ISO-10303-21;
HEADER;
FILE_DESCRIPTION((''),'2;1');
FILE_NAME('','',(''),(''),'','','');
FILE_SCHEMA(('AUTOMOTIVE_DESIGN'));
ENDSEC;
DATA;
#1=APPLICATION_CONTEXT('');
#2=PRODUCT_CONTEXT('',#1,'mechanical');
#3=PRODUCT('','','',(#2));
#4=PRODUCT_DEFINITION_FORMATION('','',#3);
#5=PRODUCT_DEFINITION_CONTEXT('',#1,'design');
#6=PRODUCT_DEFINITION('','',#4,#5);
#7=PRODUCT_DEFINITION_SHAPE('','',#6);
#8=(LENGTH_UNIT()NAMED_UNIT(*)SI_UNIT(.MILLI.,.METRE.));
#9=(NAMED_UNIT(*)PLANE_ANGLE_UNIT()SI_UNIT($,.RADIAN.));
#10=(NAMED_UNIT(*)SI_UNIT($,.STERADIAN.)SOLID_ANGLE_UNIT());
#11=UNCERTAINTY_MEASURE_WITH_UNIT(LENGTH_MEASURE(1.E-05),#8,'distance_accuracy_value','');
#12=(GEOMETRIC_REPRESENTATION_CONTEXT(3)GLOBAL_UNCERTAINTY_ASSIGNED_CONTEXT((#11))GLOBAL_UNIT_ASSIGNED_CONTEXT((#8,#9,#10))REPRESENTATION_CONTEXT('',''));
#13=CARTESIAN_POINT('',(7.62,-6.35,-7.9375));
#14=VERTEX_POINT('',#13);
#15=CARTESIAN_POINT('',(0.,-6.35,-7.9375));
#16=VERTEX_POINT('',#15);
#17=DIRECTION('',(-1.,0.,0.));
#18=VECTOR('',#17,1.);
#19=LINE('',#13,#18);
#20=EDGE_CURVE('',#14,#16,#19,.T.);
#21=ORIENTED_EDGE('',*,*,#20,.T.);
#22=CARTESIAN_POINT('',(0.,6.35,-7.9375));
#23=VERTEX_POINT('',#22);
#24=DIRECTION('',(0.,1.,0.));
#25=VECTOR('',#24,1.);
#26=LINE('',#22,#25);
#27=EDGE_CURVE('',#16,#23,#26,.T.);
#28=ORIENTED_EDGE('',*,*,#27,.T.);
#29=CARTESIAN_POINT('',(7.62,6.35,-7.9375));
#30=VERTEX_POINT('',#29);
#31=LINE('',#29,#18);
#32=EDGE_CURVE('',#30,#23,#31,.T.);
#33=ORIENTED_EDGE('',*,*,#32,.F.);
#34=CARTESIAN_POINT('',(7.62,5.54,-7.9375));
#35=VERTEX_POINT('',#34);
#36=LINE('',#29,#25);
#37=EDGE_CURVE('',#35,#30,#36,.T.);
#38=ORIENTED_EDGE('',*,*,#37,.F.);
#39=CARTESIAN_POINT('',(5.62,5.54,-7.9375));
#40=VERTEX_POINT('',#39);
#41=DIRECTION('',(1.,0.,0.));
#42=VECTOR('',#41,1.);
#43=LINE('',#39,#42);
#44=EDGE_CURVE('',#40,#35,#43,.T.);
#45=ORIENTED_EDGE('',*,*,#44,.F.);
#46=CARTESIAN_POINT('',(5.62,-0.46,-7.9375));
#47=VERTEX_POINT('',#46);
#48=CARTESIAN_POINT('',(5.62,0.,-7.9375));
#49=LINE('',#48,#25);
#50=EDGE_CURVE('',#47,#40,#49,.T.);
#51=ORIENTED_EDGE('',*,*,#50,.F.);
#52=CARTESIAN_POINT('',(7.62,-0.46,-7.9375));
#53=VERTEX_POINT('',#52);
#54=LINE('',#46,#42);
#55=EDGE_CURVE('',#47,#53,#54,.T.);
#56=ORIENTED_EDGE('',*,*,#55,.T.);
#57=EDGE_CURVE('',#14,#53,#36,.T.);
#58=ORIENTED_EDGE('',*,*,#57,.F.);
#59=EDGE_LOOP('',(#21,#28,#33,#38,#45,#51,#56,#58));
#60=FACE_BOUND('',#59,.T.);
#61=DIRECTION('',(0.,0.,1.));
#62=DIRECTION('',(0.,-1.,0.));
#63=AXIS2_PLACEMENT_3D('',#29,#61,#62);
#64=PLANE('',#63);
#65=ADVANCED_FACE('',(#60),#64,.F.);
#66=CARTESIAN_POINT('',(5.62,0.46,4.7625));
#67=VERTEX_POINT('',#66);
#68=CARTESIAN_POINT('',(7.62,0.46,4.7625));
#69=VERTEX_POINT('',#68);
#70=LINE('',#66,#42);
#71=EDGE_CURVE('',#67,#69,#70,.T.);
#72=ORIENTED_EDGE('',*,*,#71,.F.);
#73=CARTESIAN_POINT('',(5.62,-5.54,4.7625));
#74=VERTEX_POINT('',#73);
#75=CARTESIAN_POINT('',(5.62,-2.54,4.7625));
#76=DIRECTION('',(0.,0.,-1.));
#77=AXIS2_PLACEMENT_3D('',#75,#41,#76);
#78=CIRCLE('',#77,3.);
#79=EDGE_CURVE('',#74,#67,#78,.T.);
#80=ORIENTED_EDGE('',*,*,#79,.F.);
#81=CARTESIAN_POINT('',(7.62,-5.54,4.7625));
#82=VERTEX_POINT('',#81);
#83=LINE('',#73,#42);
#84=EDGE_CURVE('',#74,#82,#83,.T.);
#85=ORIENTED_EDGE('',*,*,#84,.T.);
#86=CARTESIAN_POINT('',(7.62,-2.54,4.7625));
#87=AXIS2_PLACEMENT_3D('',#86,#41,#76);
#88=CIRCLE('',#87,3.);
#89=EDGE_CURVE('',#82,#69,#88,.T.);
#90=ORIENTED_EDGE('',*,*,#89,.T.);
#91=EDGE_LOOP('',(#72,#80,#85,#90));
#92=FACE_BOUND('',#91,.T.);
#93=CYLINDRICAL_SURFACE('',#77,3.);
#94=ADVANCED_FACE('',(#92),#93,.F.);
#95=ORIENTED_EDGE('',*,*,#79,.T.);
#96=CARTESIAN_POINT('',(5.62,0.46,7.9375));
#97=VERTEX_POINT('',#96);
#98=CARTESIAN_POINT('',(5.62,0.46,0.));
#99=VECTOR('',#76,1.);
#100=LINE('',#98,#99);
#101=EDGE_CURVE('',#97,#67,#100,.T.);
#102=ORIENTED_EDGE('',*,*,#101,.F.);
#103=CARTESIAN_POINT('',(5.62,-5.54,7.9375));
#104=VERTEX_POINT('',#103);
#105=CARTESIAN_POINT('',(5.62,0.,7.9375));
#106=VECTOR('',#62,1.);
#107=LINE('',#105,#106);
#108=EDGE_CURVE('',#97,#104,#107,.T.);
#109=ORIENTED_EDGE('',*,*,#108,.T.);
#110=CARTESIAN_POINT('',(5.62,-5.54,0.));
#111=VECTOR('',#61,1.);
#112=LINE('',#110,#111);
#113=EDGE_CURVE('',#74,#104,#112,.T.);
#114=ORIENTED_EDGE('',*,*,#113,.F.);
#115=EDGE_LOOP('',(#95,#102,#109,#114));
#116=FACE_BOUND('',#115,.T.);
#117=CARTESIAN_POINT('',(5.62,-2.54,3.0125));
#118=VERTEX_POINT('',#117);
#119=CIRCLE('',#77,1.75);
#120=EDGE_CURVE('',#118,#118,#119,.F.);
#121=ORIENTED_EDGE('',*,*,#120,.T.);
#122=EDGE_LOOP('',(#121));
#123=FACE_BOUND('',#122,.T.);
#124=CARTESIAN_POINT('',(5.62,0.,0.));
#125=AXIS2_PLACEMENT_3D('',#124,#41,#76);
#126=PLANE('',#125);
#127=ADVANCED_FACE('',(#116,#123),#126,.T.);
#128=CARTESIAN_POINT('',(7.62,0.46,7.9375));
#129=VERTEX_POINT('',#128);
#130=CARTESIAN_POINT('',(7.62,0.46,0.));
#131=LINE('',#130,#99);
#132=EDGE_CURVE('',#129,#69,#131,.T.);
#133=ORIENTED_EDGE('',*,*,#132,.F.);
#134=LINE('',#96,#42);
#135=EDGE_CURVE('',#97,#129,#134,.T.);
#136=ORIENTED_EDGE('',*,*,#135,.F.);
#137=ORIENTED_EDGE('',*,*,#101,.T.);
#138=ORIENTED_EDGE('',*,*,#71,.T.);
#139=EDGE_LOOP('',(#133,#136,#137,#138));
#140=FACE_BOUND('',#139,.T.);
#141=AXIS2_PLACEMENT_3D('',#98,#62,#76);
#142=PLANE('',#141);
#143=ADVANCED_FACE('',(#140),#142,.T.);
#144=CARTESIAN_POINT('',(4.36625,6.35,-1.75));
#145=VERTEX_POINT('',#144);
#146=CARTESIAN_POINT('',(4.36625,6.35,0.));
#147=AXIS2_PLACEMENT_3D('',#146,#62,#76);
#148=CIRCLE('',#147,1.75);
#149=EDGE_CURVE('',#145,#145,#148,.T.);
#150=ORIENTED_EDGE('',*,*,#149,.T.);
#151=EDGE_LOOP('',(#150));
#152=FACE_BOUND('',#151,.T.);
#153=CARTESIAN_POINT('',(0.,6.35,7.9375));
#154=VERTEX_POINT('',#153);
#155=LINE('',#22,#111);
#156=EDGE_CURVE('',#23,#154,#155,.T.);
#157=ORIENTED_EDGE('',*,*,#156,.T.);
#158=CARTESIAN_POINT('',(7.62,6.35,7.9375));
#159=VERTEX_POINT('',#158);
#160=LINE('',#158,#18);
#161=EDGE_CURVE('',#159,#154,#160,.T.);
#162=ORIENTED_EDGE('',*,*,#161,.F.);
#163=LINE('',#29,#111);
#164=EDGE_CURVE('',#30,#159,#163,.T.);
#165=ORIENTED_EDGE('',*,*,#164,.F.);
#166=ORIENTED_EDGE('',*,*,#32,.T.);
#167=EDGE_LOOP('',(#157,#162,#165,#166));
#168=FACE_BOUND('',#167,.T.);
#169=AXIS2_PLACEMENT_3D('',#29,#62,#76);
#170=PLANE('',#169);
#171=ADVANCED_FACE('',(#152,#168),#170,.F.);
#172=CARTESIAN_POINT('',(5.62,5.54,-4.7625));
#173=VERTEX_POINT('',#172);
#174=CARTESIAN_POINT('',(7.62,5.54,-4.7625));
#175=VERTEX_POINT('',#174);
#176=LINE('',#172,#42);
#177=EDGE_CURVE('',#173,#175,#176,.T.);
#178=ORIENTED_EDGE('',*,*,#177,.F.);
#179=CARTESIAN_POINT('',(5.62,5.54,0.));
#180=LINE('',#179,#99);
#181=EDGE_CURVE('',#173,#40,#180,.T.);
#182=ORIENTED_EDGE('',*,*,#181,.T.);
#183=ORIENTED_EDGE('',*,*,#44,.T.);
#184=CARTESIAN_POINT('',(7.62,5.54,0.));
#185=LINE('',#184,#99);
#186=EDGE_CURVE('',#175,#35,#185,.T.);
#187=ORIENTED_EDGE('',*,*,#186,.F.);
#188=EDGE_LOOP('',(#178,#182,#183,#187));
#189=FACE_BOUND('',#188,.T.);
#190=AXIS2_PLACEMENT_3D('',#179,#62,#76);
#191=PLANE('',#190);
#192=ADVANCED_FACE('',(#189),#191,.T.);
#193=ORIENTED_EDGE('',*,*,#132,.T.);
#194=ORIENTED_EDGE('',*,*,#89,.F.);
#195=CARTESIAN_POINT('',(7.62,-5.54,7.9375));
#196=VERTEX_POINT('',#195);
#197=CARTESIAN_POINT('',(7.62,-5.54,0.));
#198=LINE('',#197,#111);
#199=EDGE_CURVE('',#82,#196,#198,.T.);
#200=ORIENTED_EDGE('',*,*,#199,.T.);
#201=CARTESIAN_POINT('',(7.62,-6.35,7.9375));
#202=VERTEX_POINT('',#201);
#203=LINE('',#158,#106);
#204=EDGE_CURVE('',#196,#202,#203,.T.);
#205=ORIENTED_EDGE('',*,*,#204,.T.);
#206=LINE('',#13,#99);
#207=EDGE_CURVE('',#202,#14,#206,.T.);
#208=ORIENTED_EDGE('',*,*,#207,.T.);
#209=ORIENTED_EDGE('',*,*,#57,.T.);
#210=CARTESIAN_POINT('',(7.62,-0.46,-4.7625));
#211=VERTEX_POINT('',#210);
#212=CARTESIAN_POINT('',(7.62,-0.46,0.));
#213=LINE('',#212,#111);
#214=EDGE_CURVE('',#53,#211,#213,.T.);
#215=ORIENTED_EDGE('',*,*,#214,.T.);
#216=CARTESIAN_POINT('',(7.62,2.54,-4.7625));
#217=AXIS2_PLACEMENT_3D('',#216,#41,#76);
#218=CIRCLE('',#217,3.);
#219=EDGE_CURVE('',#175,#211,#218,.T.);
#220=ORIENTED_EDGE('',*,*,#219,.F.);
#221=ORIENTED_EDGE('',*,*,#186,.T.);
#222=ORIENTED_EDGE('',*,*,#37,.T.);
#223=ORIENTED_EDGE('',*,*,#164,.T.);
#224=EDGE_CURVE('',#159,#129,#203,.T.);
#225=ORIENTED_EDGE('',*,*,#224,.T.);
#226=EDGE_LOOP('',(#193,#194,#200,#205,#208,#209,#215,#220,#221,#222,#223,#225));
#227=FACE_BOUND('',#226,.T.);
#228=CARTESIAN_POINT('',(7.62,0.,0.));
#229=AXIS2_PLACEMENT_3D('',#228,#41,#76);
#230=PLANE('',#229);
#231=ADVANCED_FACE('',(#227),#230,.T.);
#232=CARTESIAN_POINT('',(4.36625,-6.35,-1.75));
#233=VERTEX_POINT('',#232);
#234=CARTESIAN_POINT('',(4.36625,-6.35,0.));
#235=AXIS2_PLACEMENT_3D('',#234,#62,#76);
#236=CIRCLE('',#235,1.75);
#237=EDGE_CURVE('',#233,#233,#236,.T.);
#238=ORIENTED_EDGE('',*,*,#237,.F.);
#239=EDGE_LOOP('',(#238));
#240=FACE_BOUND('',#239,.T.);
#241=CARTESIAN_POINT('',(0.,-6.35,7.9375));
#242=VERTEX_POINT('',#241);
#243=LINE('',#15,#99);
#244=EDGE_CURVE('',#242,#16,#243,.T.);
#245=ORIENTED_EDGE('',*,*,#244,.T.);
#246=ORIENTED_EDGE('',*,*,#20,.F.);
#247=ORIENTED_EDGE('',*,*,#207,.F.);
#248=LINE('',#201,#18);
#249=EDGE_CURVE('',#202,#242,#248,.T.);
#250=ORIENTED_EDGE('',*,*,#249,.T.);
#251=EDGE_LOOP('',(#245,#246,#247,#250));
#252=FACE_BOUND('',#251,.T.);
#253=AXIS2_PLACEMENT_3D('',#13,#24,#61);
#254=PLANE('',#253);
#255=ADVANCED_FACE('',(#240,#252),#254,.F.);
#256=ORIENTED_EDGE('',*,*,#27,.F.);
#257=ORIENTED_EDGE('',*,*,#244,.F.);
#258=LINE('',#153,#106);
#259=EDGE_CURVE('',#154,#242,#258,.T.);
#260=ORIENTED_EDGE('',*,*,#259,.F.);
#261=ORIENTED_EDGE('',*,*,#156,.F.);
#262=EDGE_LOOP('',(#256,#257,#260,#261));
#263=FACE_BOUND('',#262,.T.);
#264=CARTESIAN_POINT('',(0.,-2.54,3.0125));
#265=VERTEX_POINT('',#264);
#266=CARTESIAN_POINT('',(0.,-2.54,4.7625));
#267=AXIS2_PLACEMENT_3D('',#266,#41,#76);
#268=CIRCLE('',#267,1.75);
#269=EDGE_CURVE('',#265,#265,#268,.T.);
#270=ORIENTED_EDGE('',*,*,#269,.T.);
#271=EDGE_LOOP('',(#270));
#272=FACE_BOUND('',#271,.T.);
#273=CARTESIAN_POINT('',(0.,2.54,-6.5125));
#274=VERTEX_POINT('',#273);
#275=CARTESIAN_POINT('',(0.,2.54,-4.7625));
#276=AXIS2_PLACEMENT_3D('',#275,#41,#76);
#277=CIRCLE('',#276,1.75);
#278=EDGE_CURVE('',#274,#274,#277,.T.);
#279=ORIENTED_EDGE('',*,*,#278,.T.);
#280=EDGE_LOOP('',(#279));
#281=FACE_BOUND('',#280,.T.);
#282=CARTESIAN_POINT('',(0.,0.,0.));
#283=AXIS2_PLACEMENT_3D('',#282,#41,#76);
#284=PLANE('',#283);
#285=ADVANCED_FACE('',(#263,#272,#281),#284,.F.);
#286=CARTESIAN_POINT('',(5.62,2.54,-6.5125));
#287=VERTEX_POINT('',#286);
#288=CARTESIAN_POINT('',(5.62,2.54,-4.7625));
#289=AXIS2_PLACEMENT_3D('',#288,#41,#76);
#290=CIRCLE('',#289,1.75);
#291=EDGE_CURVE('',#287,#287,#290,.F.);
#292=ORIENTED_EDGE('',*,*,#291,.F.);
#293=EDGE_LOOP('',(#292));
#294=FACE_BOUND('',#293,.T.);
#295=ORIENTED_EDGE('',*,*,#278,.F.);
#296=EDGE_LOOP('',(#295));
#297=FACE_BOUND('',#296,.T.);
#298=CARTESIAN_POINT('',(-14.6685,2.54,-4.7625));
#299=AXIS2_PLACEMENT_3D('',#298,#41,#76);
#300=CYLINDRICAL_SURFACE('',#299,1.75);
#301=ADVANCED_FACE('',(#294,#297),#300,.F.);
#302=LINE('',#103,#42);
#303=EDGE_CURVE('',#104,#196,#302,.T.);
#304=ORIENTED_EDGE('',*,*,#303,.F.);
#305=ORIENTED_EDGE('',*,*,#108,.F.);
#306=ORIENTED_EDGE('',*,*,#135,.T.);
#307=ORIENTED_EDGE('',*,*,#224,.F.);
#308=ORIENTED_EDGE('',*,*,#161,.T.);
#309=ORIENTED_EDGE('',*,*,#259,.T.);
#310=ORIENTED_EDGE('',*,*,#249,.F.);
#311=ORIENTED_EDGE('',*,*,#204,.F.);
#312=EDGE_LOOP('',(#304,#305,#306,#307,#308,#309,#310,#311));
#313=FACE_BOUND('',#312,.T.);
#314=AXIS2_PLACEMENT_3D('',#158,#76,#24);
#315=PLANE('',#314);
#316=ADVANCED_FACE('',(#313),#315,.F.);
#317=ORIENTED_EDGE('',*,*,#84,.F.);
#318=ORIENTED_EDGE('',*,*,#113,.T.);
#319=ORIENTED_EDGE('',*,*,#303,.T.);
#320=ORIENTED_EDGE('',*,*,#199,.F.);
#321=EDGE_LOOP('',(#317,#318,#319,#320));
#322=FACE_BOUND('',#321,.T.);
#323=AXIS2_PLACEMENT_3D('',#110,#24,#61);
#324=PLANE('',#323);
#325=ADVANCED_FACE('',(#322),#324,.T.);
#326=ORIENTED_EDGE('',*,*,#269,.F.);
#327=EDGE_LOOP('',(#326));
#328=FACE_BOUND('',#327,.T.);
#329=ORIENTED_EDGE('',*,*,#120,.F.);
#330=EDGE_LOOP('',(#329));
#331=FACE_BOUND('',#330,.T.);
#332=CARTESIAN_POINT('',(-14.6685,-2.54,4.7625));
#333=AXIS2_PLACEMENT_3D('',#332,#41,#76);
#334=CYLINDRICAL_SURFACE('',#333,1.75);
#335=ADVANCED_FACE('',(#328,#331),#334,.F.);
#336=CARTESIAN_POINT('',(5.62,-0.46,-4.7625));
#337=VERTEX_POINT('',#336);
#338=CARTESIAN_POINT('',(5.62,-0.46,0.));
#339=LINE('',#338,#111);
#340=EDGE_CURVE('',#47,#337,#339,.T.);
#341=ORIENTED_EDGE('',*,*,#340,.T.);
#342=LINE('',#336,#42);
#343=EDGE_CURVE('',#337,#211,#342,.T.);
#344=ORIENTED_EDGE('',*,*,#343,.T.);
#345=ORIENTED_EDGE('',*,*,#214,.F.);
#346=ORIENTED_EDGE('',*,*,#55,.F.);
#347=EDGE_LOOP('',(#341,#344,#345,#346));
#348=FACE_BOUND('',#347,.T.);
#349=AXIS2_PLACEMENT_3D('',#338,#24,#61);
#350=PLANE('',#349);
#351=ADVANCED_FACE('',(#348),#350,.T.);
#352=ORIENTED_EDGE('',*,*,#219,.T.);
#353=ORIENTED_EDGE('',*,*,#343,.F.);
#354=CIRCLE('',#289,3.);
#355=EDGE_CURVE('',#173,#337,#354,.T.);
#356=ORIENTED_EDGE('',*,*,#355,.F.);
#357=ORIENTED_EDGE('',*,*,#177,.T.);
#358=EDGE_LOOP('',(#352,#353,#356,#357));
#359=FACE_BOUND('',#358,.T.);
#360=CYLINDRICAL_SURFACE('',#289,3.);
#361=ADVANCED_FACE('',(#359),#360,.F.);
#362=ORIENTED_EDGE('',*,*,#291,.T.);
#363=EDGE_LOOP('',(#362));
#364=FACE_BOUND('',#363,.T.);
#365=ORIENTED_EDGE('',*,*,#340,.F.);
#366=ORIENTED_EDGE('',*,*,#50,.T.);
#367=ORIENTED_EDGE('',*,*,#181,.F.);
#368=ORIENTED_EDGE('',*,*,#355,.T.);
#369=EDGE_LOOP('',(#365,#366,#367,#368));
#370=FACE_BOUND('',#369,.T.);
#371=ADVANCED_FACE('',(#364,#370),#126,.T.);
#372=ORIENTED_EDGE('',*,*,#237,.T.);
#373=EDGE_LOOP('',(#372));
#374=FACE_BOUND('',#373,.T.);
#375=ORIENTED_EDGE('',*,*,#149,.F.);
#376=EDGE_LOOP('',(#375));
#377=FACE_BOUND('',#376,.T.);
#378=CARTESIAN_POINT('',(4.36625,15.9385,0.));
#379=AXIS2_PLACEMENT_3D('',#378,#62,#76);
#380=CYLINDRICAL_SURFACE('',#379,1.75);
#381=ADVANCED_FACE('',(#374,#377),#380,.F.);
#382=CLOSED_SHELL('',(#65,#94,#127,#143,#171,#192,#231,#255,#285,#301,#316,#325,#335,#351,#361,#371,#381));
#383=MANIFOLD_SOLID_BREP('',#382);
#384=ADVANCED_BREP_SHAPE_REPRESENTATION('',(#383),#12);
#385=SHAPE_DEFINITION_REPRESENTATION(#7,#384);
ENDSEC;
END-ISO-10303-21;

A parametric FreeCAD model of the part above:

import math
import FreeCAD as App
import Part
import Sketcher
Q = App.Units.Quantity

doc = App.newDocument("Part")
body = doc.addObject("PartDesign::Body", "Body")

# Sketch on YZ plane
sketch1 = body.newObject("Sketcher::SketchObject", "Sketch")
sketch1.AttachmentSupport = (doc.getObject("YZ_Plane"), [""])
sketch1.MapMode = "FlatFace"
sketch1.addGeometry([
    Part.LineSegment(App.Vector(-6, 8, 0), App.Vector(-6, -8, 0)),
    Part.LineSegment(App.Vector(-6, -8, 0), App.Vector(6, -8, 0)),
    Part.LineSegment(App.Vector(6, -8, 0), App.Vector(6, 8, 0)),
    Part.LineSegment(App.Vector(6, 8, 0), App.Vector(-6, 8, 0)),
], False)
sketch1.addConstraint([
    Sketcher.Constraint("Coincident", 0, 2, 1, 1),
    Sketcher.Constraint("Coincident", 1, 2, 2, 1),
    Sketcher.Constraint("Coincident", 2, 2, 3, 1),
    Sketcher.Constraint("Coincident", 3, 2, 0, 1),
    Sketcher.Constraint("Vertical", 0),
    Sketcher.Constraint("Horizontal", 1),
    Sketcher.Constraint("Vertical", 2),
    Sketcher.Constraint("Horizontal", 3),
    Sketcher.Constraint("Symmetric", 0, 2, 2, 2, -1, 1),
    Sketcher.Constraint("DistanceX", 1, 1, 1, 2, Q("0.5 in")),
    Sketcher.Constraint("DistanceY", 0, 2, 0, 1, Q("0.625 in")),
])
pad1 = body.newObject("PartDesign::Pad", "Pad")
pad1.Profile = sketch1
pad1.Length = Q("0.3 in")

# Sketch on XZ plane
sketch2 = body.newObject("Sketcher::SketchObject", "Sketch001")
sketch2.AttachmentSupport = (doc.getObject("XZ_Plane"), [""])
sketch2.MapMode = "FlatFace"
sketch2.AttachmentOffset = App.Placement(App.Vector(0, 0, 0.25 * 25.4), App.Rotation())
sketch2.addGeometry(Part.Circle(App.Vector(4.4, 0, 0), App.Vector(0, 0, 1), 1.8), False)
sketch2.addConstraint([
    Sketcher.Constraint("PointOnObject", 0, 3, -1),
    Sketcher.Constraint("Diameter", 0, 3.5),
    Sketcher.Constraint("DistanceX", -1, 1, 0, 3, 4.36625),
])
pocket1 = body.newObject("PartDesign::Pocket", "Pocket")
pocket1.Profile = sketch2
pocket1.Length = Q("0.8775 in")

# Sketch on YZ plane
sketch3 = body.newObject("Sketcher::SketchObject", "Sketch002")
sketch3.AttachmentSupport = (doc.getObject("YZ_Plane"), [""])
sketch3.MapMode = "FlatFace"
sketch3.AttachmentOffset = App.Placement(App.Vector(0, 0, 0.3 * 25.4), App.Rotation())
sketch3.addGeometry([
    Part.Circle(App.Vector(-2.5, 4.8, 0), App.Vector(0, 0, 1), 1.8),
    Part.Circle(App.Vector(2.5, -4.8, 0), App.Vector(0, 0, 1), 1.8),
], False)
sketch3.addConstraint([
    Sketcher.Constraint("Equal", 0, 1),
    Sketcher.Constraint("Symmetric", 0, 3, 1, 3, -1, 1),
    Sketcher.Constraint("DistanceX", 0, 3, -1, 1, Q("0.1 in")),
    Sketcher.Constraint("Diameter", 0, 3.5),
    Sketcher.Constraint("DistanceY", -1, 1, 0, 3, Q("0.1875 in")),
])
pocket2 = body.newObject("PartDesign::Pocket", "Pocket001")
pocket2.Profile = sketch3
pocket2.Length = Q("0.8775 in")

# Sketch on YZ plane
sketch4 = body.newObject("Sketcher::SketchObject", "Sketch003")
sketch4.AttachmentSupport = (doc.getObject("YZ_Plane"), [""])
sketch4.MapMode = "FlatFace"
sketch4.AttachmentOffset = App.Placement(App.Vector(0, 0, 0.3 * 25.4), App.Rotation())
sketch4.addGeometry([
    Part.ArcOfCircle(Part.Circle(App.Vector(-2.5, 4.8, 0), App.Vector(0, 0, 1), 3), math.radians(180), math.radians(360)),  # 0
    Part.LineSegment(App.Vector(0.5, 4.8, 0), App.Vector(0.5, 7.9, 0)),  # 1
    Part.LineSegment(App.Vector(0.5, 7.9, 0), App.Vector(-5.5, 7.9, 0)),  # 2
    Part.LineSegment(App.Vector(-5.5, 7.9, 0), App.Vector(-5.5, 4.8, 0)),  # 3
    Part.Circle(App.Vector(-2.5, 4.8, 0), App.Vector(0, 0, 1), 1.8),  # 4
    Part.ArcOfCircle(Part.Circle(App.Vector(2.5, -4.8, 0), App.Vector(0, 0, 1), 3), math.radians(0), math.radians(180)),  # 5
    Part.LineSegment(App.Vector(-0.5, -4.8, 0), App.Vector(-0.5, -7.9, 0)),  # 6
    Part.LineSegment(App.Vector(-0.5, -7.9, 0), App.Vector(5.5, -7.9, 0)),  # 7
    Part.LineSegment(App.Vector(5.5, -7.9, 0), App.Vector(5.5, -4.8, 0)),  # 8
    Part.Circle(App.Vector(2.5, -4.8, 0), App.Vector(0, 0, 1), 1.8),  # 9
], False)
sketch4.addConstraint([
    Sketcher.Constraint("Tangent", 0, 2, 1, 1),
    Sketcher.Constraint("Coincident", 1, 2, 2, 1),
    Sketcher.Constraint("Coincident", 2, 2, 3, 1),
    Sketcher.Constraint("Tangent", 3, 2, 0, 1),
    Sketcher.Constraint("Tangent", 5, 2, 6, 1),
    Sketcher.Constraint("Coincident", 6, 2, 7, 1),
    Sketcher.Constraint("Coincident", 7, 2, 8, 1),
    Sketcher.Constraint("Tangent", 8, 2, 5, 1),
    Sketcher.Constraint("Vertical", 1),
    Sketcher.Constraint("Horizontal", 2),
    Sketcher.Constraint("Vertical", 3),
    Sketcher.Constraint("Vertical", 6),
    Sketcher.Constraint("Horizontal", 7),
    Sketcher.Constraint("Vertical", 8),
    Sketcher.Constraint("Coincident", 4, 3, 0, 3),
    Sketcher.Constraint("Coincident", 9, 3, 5, 3),
    Sketcher.Constraint("Equal", 0, 5),
    Sketcher.Constraint("Equal", 4, 9),
    Sketcher.Constraint("Symmetric", 0, 3, 5, 3, -1, 1),
    Sketcher.Constraint("Equal", 3, 6),
    Sketcher.Constraint("DistanceX", 0, 3, -1, 1, Q("0.1 in")),
    Sketcher.Constraint("DistanceY", 5, 3, 1, 2, Q("0.5 in")),
    Sketcher.Constraint("Diameter", 4, 3.5),
    Sketcher.Constraint("DistanceY", 1, 1, 1, 2, Q("0.125 in")),
    Sketcher.Constraint("Radius", 0, 3.0),
])
pocket3 = body.newObject("PartDesign::Pocket", "Pocket002")
pocket3.Profile = sketch4
pocket3.Length = 2

doc.recompute()
